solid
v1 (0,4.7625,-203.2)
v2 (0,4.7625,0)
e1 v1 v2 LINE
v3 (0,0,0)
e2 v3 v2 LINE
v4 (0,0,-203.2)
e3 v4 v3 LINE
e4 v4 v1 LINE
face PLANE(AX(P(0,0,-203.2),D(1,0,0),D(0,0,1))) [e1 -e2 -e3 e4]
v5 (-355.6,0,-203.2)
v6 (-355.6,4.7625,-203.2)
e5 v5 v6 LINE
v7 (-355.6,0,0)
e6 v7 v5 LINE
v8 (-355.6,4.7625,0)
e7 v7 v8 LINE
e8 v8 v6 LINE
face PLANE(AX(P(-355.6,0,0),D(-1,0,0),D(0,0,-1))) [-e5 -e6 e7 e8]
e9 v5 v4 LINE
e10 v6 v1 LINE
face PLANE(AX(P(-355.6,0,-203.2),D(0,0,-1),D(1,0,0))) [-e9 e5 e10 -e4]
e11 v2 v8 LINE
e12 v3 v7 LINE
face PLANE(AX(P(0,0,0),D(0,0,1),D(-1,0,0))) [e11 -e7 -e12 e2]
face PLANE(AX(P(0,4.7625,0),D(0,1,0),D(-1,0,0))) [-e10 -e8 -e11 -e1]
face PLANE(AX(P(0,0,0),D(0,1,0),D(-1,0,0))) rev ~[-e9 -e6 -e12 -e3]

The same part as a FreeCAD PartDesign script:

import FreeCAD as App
import Part
import Sketcher
from FreeCAD import Vector
Q = App.Units.Quantity


def add_polygon(sketch, points):
    """Adds a closed chain of lines whose ends are joined by coincident constraints."""
    first, n = sketch.GeometryCount, len(points)
    for a, b in zip(points, points[1:] + points[:1]):
        sketch.addGeometry(Part.LineSegment(App.Vector(*a, 0), App.Vector(*b, 0)), False)
    for i in range(n):
        sketch.addConstraint(Sketcher.Constraint("Coincident", first + i, 2, first + (i + 1) % n, 1))

doc = App.newDocument("Part")
params = doc.addObject("Spreadsheet::Sheet", "Params")
for row, (alias, value) in enumerate([
    ("sketch1_width", "14 in"),
    ("sketch1_height", "8 in"),
    ("pad1_length", "0.1875 in"),
], start=1):
    params.set(f"A{row}", alias)
    params.set(f"B{row}", "=" + value)
    params.setAlias(f"B{row}", alias)

body = doc.addObject("PartDesign::Body", "Body")

# Sketch on XZ plane
sketch1 = body.newObject("Sketcher::SketchObject", "Sketch")
sketch1.AttachmentSupport = (doc.getObject("XZ_Plane"), [""])
sketch1.MapMode = "FlatFace"
add_polygon(sketch1, [(-356, 0), (0, 0), (0, -203), (-356, -203)])  # lines 0-3
sketch1.addConstraint([
    Sketcher.Constraint("Horizontal", 0),
    Sketcher.Constraint("Vertical", 1),
    Sketcher.Constraint("Horizontal", 2),
    Sketcher.Constraint("Vertical", 3),
    Sketcher.Constraint("Coincident", 0, 2, -1, 1),
    Sketcher.Constraint("DistanceX", 0, 1, 0, 2, Q("14 in")),
    Sketcher.Constraint("DistanceY", 1, 2, 1, 1, Q("8 in")),
])
sketch1.setExpression("Constraints[9]", "Params.sketch1_width")
sketch1.setExpression("Constraints[10]", "Params.sketch1_height")
pad1 = body.newObject("PartDesign::Pad", "Pad")
pad1.Profile = sketch1
pad1.setExpression("Length", "Params.pad1_length")
pad1.Reversed = True

doc.recompute()
